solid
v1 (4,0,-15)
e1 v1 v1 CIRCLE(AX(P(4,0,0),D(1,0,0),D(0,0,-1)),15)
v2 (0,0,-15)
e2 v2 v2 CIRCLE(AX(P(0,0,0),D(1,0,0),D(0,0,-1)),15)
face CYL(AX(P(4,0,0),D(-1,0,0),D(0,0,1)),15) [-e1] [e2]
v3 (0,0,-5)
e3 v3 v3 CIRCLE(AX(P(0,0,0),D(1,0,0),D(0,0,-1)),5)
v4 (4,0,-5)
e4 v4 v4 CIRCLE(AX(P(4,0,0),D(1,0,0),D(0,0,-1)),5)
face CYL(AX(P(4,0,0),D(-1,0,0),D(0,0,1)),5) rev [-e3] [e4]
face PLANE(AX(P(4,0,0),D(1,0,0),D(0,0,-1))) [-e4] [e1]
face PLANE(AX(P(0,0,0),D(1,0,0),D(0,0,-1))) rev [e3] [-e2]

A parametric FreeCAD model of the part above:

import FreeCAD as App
import Part
import Sketcher
from FreeCAD import Vector

doc = App.newDocument("Part")
params = doc.addObject("Spreadsheet::Sheet", "Params")
for row, (alias, value) in enumerate([
    ("sketch1_diameter", "30 mm"),
    ("sketch1_diameter2", "10 mm"),
    ("pad1_length", "4 mm"),
], start=1):
    params.set(f"A{row}", alias)
    params.set(f"B{row}", "=" + value)
    params.setAlias(f"B{row}", alias)

body = doc.addObject("PartDesign::Body", "Body")

sketch1 = body.newObject("Sketcher::SketchObject", "Sketch")
sketch1.AttachmentSupport = (doc.getObject("YZ_Plane"), [""])
sketch1.MapMode = "FlatFace"
sketch1.addGeometry([
    Part.Circle(Vector(0, 0, 0), Vector(0, 0, 1), 15),
    Part.Circle(Vector(0, 0, 0), Vector(0, 0, 1), 5),
], False)
sketch1.addConstraint([
    Sketcher.Constraint("Coincident", 0, 3, -1, 1),
    Sketcher.Constraint("Coincident", 1, 3, -1, 1),
    Sketcher.Constraint("Diameter", 0, 30.0),
    Sketcher.Constraint("Diameter", 1, 10.0),
])
sketch1.setExpression("Constraints[2]", "Params.sketch1_diameter")
sketch1.setExpression("Constraints[3]", "Params.sketch1_diameter2")
pad1 = body.newObject("PartDesign::Pad", "Pad")
pad1.Profile = sketch1
pad1.setExpression("Length", "Params.pad1_length")

doc.recompute()
